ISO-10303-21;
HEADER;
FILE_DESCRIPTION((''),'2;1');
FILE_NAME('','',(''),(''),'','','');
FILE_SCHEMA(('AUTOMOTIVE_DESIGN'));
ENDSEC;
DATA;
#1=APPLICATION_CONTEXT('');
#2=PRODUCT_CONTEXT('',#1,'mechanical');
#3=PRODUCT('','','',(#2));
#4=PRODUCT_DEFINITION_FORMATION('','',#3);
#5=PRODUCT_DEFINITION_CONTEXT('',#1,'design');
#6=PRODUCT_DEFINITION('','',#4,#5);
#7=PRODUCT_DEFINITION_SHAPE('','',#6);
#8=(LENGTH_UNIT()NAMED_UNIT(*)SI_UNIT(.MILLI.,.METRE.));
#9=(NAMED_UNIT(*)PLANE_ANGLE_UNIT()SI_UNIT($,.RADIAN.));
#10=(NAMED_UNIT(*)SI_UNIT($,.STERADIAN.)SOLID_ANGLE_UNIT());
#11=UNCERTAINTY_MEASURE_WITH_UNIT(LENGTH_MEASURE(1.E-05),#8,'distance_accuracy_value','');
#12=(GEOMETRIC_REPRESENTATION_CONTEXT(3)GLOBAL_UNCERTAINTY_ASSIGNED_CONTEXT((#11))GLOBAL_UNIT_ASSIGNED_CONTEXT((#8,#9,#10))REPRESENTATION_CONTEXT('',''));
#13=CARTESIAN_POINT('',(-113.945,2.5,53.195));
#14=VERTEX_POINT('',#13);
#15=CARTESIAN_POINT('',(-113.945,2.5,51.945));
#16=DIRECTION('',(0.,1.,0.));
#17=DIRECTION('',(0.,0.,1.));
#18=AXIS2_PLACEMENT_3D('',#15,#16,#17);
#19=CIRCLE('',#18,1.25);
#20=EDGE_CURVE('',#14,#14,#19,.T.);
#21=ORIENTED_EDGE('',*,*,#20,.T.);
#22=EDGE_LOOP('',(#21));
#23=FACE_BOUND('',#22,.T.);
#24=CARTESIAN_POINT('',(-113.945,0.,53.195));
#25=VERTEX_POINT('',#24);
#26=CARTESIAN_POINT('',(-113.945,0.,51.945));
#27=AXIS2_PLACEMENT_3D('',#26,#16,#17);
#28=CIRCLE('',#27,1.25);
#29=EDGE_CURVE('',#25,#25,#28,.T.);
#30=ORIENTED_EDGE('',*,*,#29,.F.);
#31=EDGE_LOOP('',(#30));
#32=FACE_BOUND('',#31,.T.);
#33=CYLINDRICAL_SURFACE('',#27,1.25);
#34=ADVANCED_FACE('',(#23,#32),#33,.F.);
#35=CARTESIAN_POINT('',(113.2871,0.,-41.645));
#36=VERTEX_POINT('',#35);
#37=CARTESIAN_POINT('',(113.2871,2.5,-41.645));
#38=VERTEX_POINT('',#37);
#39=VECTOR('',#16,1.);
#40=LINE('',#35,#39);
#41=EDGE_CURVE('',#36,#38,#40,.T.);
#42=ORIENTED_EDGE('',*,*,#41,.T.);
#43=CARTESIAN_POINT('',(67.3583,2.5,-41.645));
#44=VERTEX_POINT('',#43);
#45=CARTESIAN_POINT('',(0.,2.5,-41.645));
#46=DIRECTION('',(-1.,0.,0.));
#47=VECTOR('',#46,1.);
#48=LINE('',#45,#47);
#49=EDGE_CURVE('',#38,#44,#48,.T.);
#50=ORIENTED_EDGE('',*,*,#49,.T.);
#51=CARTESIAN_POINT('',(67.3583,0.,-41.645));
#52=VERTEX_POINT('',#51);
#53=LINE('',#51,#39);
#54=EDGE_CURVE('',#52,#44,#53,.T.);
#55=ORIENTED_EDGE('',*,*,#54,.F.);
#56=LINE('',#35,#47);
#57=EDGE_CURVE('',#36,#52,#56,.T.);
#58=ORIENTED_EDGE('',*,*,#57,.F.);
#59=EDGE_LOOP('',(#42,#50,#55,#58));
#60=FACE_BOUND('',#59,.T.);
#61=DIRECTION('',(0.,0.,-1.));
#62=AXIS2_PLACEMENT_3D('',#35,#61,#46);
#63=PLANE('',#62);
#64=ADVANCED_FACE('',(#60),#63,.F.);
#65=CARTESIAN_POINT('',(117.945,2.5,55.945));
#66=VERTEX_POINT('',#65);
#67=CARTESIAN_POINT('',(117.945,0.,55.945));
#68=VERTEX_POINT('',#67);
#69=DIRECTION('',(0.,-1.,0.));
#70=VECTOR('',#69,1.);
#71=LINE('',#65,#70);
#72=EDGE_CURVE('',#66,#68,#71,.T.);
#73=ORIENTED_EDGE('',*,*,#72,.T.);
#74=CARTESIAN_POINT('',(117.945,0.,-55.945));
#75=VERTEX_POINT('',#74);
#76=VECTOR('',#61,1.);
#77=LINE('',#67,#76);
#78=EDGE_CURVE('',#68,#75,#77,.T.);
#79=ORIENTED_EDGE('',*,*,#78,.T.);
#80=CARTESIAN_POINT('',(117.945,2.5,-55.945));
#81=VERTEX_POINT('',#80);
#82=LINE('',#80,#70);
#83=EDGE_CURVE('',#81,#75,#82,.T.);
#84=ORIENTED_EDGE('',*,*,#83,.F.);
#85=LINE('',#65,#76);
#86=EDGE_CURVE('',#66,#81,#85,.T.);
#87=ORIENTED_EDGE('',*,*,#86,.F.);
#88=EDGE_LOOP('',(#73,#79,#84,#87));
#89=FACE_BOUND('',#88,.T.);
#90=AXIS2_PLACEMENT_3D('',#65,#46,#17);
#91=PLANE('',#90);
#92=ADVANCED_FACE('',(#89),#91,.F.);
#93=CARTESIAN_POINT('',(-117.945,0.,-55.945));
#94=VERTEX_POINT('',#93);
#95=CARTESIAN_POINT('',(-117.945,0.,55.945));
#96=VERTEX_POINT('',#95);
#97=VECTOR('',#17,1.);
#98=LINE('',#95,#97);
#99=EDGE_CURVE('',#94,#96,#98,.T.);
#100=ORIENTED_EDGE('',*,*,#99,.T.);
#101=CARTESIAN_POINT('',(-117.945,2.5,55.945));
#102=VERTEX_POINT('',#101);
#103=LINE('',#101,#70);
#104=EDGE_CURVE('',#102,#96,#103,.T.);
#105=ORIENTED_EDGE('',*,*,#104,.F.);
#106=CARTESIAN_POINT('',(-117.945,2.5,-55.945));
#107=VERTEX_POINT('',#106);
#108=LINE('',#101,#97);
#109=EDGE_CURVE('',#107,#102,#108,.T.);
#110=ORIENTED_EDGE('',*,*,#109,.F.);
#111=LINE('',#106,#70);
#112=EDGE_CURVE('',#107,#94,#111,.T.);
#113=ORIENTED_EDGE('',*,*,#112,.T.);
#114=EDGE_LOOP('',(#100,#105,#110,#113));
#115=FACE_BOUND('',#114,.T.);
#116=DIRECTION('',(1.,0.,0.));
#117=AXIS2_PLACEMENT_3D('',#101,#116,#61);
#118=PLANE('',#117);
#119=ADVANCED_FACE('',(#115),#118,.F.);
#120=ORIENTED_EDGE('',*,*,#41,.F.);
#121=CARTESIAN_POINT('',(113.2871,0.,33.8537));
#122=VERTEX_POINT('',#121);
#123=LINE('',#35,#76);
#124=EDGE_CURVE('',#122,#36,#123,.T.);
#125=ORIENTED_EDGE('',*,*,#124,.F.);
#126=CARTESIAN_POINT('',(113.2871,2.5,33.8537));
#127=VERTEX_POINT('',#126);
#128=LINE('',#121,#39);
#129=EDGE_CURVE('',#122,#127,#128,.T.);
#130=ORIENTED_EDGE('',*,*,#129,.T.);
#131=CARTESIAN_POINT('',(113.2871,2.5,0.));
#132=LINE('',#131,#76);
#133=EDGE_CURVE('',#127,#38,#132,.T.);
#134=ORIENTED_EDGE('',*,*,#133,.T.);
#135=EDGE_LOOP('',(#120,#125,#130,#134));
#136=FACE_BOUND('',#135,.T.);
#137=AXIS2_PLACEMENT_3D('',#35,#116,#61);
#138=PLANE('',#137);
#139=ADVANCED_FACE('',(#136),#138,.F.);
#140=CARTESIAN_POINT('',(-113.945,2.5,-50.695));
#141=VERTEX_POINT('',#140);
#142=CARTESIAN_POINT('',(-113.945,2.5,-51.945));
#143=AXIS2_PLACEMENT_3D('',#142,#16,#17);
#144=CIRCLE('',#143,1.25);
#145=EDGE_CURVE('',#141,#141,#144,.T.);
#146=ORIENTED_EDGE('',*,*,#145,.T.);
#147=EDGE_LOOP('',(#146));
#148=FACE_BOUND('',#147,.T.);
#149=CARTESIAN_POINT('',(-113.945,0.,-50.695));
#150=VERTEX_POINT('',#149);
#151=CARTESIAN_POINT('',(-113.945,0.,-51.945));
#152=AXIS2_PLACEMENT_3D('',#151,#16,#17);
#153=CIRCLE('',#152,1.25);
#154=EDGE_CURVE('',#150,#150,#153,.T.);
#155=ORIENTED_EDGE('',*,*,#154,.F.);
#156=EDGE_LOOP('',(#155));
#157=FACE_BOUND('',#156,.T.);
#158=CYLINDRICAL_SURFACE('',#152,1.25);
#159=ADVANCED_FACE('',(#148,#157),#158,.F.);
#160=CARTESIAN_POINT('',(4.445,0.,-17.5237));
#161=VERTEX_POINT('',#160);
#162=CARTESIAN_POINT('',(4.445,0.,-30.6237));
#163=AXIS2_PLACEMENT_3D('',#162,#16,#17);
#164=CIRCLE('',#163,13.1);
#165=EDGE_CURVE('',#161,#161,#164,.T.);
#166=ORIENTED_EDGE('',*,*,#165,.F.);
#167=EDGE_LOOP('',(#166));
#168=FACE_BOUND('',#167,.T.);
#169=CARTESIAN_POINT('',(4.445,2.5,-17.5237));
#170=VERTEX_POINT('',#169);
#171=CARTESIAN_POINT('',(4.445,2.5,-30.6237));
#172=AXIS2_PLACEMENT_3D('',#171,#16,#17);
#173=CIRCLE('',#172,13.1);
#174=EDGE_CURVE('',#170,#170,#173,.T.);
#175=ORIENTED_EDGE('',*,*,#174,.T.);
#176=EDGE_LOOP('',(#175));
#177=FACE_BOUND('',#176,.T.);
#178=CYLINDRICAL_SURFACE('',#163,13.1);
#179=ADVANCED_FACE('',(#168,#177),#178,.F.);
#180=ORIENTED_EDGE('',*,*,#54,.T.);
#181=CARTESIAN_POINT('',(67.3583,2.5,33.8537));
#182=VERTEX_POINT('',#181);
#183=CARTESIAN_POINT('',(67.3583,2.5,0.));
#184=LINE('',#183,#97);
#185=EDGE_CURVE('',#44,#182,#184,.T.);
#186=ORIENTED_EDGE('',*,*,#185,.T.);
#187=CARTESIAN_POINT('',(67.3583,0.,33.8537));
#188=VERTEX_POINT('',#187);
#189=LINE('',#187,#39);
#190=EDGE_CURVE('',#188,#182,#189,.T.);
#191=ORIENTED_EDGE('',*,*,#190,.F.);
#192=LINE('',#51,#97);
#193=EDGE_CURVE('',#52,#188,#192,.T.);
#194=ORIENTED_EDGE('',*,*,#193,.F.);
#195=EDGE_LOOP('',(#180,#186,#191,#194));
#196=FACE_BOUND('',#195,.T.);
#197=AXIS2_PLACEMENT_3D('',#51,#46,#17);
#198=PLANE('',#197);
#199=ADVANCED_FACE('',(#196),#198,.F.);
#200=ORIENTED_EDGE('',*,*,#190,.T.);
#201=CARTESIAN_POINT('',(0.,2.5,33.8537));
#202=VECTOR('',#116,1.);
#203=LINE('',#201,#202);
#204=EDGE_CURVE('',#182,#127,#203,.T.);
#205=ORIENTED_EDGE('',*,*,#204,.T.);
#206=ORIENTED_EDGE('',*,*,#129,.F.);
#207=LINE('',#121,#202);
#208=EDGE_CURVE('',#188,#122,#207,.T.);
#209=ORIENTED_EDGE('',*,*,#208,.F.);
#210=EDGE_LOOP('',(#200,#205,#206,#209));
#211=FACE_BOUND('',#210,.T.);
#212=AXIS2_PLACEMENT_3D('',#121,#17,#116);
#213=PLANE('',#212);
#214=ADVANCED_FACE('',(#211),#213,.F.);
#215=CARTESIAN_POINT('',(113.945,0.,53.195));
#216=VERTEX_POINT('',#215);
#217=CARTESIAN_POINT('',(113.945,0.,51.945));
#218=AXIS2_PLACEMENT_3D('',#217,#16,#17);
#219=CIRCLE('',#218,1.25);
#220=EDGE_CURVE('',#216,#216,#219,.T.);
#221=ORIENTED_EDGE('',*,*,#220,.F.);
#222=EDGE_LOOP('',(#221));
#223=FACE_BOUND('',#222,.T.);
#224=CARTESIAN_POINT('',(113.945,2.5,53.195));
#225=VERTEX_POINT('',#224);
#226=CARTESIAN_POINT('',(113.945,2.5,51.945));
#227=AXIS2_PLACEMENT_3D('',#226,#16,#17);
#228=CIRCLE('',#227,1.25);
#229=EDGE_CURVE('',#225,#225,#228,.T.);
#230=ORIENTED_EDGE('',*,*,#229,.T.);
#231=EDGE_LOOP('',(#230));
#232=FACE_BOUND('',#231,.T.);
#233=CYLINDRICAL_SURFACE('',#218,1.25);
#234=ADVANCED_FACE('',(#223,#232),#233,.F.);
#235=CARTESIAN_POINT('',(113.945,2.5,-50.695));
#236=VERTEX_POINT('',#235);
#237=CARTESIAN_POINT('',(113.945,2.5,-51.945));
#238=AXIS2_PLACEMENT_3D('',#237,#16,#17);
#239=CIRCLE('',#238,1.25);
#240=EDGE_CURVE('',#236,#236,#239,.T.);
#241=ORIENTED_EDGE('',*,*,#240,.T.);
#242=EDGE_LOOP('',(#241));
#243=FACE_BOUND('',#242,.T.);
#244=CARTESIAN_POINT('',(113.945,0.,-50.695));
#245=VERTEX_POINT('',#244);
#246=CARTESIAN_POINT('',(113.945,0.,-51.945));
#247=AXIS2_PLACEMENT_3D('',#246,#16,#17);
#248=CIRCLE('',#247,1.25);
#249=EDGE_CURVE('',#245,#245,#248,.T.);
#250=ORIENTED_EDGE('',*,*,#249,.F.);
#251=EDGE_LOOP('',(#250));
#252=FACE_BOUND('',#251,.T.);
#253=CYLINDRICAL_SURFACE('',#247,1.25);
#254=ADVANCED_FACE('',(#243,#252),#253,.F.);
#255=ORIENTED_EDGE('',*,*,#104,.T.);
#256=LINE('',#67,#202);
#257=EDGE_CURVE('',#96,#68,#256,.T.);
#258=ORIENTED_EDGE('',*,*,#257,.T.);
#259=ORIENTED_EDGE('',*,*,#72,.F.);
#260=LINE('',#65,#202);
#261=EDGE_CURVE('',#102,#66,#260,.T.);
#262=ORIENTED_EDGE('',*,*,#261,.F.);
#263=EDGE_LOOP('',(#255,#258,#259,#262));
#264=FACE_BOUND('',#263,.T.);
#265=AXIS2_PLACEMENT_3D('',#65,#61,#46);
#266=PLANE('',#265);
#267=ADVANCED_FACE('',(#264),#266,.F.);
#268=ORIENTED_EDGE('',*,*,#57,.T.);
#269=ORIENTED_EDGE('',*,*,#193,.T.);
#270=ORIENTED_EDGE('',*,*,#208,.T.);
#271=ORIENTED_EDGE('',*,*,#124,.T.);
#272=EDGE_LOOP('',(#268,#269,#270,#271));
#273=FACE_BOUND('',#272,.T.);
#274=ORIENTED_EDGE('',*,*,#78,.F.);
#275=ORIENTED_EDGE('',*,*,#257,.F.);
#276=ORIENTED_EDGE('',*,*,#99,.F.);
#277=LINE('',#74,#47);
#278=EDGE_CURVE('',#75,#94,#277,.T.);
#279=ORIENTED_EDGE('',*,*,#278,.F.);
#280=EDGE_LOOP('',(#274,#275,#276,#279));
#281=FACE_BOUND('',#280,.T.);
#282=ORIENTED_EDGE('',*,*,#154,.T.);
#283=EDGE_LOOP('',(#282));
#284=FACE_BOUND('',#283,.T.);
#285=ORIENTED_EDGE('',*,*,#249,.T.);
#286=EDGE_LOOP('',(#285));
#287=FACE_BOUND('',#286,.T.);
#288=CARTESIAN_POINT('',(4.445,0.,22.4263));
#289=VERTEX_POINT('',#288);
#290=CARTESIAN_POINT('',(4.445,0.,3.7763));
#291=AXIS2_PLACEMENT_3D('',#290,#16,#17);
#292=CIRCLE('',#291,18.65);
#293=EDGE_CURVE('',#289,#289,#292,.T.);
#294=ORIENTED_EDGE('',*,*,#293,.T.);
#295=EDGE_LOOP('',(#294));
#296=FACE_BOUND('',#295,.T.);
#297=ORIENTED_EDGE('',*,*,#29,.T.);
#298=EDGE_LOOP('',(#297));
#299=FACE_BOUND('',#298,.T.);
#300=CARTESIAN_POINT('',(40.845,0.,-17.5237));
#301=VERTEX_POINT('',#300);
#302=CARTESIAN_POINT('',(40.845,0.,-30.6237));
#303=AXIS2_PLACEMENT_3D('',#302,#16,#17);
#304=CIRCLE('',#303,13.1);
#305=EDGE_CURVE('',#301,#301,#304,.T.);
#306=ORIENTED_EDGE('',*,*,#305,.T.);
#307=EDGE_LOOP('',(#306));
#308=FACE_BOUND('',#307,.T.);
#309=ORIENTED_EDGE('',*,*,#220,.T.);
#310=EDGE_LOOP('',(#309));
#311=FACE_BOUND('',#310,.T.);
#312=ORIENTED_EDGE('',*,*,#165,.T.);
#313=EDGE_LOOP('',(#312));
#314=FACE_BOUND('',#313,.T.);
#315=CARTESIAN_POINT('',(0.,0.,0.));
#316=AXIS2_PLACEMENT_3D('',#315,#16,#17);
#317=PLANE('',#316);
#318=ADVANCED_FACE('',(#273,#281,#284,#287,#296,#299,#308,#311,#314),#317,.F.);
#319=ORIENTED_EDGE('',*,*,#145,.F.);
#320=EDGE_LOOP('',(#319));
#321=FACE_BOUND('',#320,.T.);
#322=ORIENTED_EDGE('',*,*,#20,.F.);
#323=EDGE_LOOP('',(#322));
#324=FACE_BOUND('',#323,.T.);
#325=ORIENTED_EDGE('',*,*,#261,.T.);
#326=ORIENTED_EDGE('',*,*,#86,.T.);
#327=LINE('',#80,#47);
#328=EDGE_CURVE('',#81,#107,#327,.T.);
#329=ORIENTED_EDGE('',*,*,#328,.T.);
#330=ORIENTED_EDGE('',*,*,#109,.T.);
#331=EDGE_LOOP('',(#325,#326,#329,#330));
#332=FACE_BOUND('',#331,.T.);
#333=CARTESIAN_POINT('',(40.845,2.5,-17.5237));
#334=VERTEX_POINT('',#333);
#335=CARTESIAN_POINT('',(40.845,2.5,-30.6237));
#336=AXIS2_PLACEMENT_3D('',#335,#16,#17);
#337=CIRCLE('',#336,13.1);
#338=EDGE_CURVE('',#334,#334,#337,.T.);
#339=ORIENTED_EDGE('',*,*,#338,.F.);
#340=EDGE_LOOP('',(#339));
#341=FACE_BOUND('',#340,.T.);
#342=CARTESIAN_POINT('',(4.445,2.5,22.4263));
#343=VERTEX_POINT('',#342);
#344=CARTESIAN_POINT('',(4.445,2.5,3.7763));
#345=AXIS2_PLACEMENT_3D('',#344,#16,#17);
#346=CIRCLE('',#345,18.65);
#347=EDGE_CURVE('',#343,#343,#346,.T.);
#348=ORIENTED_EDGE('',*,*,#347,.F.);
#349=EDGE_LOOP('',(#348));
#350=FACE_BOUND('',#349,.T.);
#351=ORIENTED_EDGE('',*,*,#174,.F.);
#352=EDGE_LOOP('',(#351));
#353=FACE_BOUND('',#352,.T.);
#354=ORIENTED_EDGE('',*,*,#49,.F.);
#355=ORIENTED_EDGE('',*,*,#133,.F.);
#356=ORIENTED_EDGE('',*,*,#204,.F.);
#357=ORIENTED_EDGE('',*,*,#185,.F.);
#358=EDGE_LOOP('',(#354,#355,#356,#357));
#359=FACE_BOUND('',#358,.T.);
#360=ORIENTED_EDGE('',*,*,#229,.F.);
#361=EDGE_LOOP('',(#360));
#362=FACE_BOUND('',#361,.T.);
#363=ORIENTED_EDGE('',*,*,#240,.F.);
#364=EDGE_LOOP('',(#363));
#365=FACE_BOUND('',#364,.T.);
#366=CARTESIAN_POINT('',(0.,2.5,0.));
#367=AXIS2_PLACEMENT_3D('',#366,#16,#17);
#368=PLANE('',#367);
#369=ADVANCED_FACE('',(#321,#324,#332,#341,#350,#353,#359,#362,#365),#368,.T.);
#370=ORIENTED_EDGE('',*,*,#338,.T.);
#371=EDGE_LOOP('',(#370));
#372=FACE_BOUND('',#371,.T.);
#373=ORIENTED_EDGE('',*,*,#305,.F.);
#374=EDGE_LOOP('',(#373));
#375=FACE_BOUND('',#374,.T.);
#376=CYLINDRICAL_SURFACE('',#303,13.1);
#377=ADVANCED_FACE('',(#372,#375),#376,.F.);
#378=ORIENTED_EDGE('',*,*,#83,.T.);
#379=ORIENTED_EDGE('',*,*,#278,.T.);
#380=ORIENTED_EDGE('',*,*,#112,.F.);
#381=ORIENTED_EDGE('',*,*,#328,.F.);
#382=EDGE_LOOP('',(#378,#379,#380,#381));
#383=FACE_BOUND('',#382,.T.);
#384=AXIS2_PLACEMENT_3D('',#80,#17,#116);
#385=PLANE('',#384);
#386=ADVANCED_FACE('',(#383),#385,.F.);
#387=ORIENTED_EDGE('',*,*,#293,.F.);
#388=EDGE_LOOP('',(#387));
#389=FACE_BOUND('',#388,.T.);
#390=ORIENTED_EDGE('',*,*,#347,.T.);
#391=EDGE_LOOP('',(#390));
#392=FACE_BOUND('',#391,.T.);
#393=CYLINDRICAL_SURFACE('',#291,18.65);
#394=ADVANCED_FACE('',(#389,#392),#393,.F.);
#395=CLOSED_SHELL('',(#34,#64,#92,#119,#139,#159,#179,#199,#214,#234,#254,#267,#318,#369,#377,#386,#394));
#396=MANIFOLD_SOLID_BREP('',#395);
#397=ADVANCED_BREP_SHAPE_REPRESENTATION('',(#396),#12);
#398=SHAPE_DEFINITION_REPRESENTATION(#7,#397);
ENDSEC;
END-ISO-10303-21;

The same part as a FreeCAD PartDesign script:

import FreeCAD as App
import Part
import Sketcher
from FreeCAD import Vector
Q = App.Units.Quantity

doc = App.newDocument("Part")
body = doc.addObject("PartDesign::Body", "Body")

sketch1 = doc.addObject("Sketcher::SketchObject", "Sketch")
body.addObject(sketch1)
sketch1.AttachmentSupport = (doc.XZ_Plane, [""])
sketch1.MapMode = "FlatFace"
sketch1.addGeometry([
    Part.LineSegment(Vector(-118, -56, 0), Vector(-118, 56, 0)),
    Part.LineSegment(Vector(-118, 56, 0), Vector(118, 56, 0)),
    Part.LineSegment(Vector(118, 56, 0), Vector(118, -56, 0)),
    Part.LineSegment(Vector(118, -56, 0), Vector(-118, -56, 0)),
], False)
sketch1.addConstraint([
    Sketcher.Constraint("Coincident", 0, 2, 1, 1),
    Sketcher.Constraint("Coincident", 1, 2, 2, 1),
    Sketcher.Constraint("Coincident", 2, 2, 3, 1),
    Sketcher.Constraint("Coincident", 3, 2, 0, 1),
    Sketcher.Constraint("Vertical", 0),
    Sketcher.Constraint("Horizontal", 1),
    Sketcher.Constraint("Vertical", 2),
    Sketcher.Constraint("Horizontal", 3),
    Sketcher.Constraint("Symmetric", 0, 2, 2, 2, -1, 1),
    Sketcher.Constraint("DistanceX", 1, 1, 1, 2, Q("235.89 mm")),
    Sketcher.Constraint("DistanceY", 0, 1, 0, 2, Q("111.89 mm")),
])
pad1 = doc.addObject("PartDesign::Pad", "Pad")
body.addObject(pad1)
pad1.Profile = sketch1
pad1.Length = 2.5
pad1.Reversed = True

sketch2 = doc.addObject("Sketcher::SketchObject", "Sketch001")
body.addObject(sketch2)
sketch2.AttachmentSupport = (doc.XZ_Plane, [""])
sketch2.MapMode = "FlatFace"
sketch2.AttachmentOffset = App.Placement(Vector(0, 0, -2.5), App.Rotation())
sketch2.addGeometry([
    Part.Circle(Vector(-113.9, -51.9, 0), Vector(0, 0, 1), 1.2),
    Part.Circle(Vector(-113.9, 51.9, 0), Vector(0, 0, 1), 1.2),
    Part.Circle(Vector(113.9, 51.9, 0), Vector(0, 0, 1), 1.2),
    Part.Circle(Vector(113.9, -51.9, 0), Vector(0, 0, 1), 1.2),
], False)
sketch2.addConstraint([
    Sketcher.Constraint("Equal", 0, 1),
    Sketcher.Constraint("Equal", 1, 2),
    Sketcher.Constraint("Equal", 2, 3),
    Sketcher.Constraint("Symmetric", 0, 3, 2, 3, -1, 1),
    Sketcher.Constraint("Symmetric", 1, 3, 3, 3, -1, 1),
    Sketcher.Constraint("Symmetric", 1, 3, 2, 3, -2),
    Sketcher.Constraint("Diameter", 0, Q("2.5 mm")),
    Sketcher.Constraint("DistanceY", 0, 3, 1, 3, Q("103.89 mm")),
    Sketcher.Constraint("DistanceX", 1, 3, 2, 3, Q("227.89 mm")),
])
pocket1 = doc.addObject("PartDesign::Pocket", "Pocket")
body.addObject(pocket1)
pocket1.Profile = sketch2
pocket1.Type = "ThroughAll"
pocket1.Reversed = True

sketch3 = doc.addObject("Sketcher::SketchObject", "Sketch002")
body.addObject(sketch3)
sketch3.AttachmentSupport = (doc.XZ_Plane, [""])
sketch3.MapMode = "FlatFace"
sketch3.AttachmentOffset = App.Placement(Vector(0, 0, -2.5), App.Rotation())
sketch3.addGeometry([
    Part.Circle(Vector(41, -31, 0), Vector(0, 0, 1), 13),
    Part.Circle(Vector(4, -31, 0), Vector(0, 0, 1), 13),
    Part.Circle(Vector(4, 4, 0), Vector(0, 0, 1), 19),
    Part.LineSegment(Vector(67, -42, 0), Vector(67, 34, 0)),
    Part.LineSegment(Vector(67, 34, 0), Vector(113, 34, 0)),
    Part.LineSegment(Vector(113, 34, 0), Vector(113, -42, 0)),
    Part.LineSegment(Vector(113, -42, 0), Vector(67, -42, 0)),
], False)
sketch3.addConstraint([
    Sketcher.Constraint("Coincident", 3, 2, 4, 1),
    Sketcher.Constraint("Coincident", 4, 2, 5, 1),
    Sketcher.Constraint("Coincident", 5, 2, 6, 1),
    Sketcher.Constraint("Coincident", 6, 2, 3, 1),
    Sketcher.Constraint("Vertical", 3),
    Sketcher.Constraint("Horizontal", 4),
    Sketcher.Constraint("Vertical", 5),
    Sketcher.Constraint("Horizontal", 6),
    Sketcher.Constraint("Equal", 0, 1),
    Sketcher.Constraint("Horizontal", 0, 3, 1, 3),
    Sketcher.Constraint("Vertical", 1, 3, 2, 3),
    Sketcher.Constraint("Diameter", 0, Q("26.2 mm")),
    Sketcher.Constraint("Diameter", 2, Q("37.3 mm")),
    Sketcher.Constraint("DistanceX", 1, 3, 0, 3, Q("36.4 mm")),
    Sketcher.Constraint("DistanceY", 1, 3, 2, 3, Q("34.4 mm")),
    Sketcher.Constraint("DistanceX", 4, 1, 4, 2, Q("45.9288 mm")),
    Sketcher.Constraint("DistanceY", 3, 1, 3, 2, Q("75.4987 mm")),
    Sketcher.Constraint("DistanceX", -1, 1, 0, 3, Q("40.845 mm")),
    Sketcher.Constraint("DistanceY", 5, 2, -1, 1, Q("41.645 mm")),
    Sketcher.Constraint("DistanceY", 0, 3, -1, 1, Q("30.6237 mm")),
    Sketcher.Constraint("DistanceX", -1, 1, 3, 2, Q("67.3583 mm")),
])
pocket2 = doc.addObject("PartDesign::Pocket", "Pocket001")
body.addObject(pocket2)
pocket2.Profile = sketch3
pocket2.Type = "ThroughAll"
pocket2.Midplane = True

doc.recompute()
